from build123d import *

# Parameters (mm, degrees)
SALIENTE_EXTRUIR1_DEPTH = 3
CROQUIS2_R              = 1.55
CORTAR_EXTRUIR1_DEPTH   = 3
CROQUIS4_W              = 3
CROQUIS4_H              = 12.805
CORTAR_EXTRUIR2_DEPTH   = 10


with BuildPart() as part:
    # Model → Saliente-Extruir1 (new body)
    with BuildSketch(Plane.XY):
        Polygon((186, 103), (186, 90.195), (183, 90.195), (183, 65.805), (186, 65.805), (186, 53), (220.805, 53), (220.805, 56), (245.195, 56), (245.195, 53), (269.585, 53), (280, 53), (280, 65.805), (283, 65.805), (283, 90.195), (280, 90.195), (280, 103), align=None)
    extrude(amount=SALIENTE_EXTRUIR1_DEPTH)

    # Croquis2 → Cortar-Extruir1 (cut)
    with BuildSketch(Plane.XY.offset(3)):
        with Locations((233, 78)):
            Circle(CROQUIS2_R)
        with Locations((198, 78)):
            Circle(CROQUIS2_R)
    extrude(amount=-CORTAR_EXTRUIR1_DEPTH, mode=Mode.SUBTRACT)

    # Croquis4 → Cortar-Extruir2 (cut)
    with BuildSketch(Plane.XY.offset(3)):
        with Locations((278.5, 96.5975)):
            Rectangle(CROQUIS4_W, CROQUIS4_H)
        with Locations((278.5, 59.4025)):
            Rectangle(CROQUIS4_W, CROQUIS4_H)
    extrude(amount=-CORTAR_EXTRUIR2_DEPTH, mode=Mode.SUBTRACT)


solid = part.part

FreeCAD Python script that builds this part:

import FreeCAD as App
import Part
import Sketcher
Q = App.Units.Quantity

doc = App.newDocument("Part")
body = doc.addObject("PartDesign::Body", "Body")

# Sketch on XY plane
sketch1 = body.newObject("Sketcher::SketchObject", "Sketch")
sketch1.AttachmentSupport = (doc.getObject("XY_Plane"), [""])
sketch1.MapMode = "FlatFace"
sketch1.addGeometry([
    Part.LineSegment(App.Vector(186, 103, 0), App.Vector(186, 90.2, 0)),  # 0
    Part.LineSegment(App.Vector(186, 90.2, 0), App.Vector(183, 90.2, 0)),  # 1
    Part.LineSegment(App.Vector(183, 90.2, 0), App.Vector(183, 65.8, 0)),  # 2
    Part.LineSegment(App.Vector(183, 65.8, 0), App.Vector(186, 65.8, 0)),  # 3
    Part.LineSegment(App.Vector(186, 65.8, 0), App.Vector(186, 53, 0)),  # 4
    Part.LineSegment(App.Vector(186, 53, 0), App.Vector(220.8, 53, 0)),  # 5
    Part.LineSegment(App.Vector(220.8, 53, 0), App.Vector(220.8, 56, 0)),  # 6
    Part.LineSegment(App.Vector(220.8, 56, 0), App.Vector(245.2, 56, 0)),  # 7
    Part.LineSegment(App.Vector(245.2, 56, 0), App.Vector(245.2, 53, 0)),  # 8
    Part.LineSegment(App.Vector(245.2, 53, 0), App.Vector(280, 53, 0)),  # 9
    Part.LineSegment(App.Vector(280, 53, 0), App.Vector(280, 65.8, 0)),  # 10
    Part.LineSegment(App.Vector(280, 65.8, 0), App.Vector(283, 65.8, 0)),  # 11
    Part.LineSegment(App.Vector(283, 65.8, 0), App.Vector(283, 90.2, 0)),  # 12
    Part.LineSegment(App.Vector(283, 90.2, 0), App.Vector(280, 90.2, 0)),  # 13
    Part.LineSegment(App.Vector(280, 90.2, 0), App.Vector(280, 103, 0)),  # 14
    Part.LineSegment(App.Vector(280, 103, 0), App.Vector(186, 103, 0)),  # 15
], False)
sketch1.addConstraint([
    Sketcher.Constraint("Coincident", 0, 2, 1, 1),
    Sketcher.Constraint("Coincident", 1, 2, 2, 1),
    Sketcher.Constraint("Coincident", 2, 2, 3, 1),
    Sketcher.Constraint("Coincident", 3, 2, 4, 1),
    Sketcher.Constraint("Coincident", 4, 2, 5, 1),
    Sketcher.Constraint("Coincident", 5, 2, 6, 1),
    Sketcher.Constraint("Coincident", 6, 2, 7, 1),
    Sketcher.Constraint("Coincident", 7, 2, 8, 1),
    Sketcher.Constraint("Coincident", 8, 2, 9, 1),
    Sketcher.Constraint("Coincident", 9, 2, 10, 1),
    Sketcher.Constraint("Coincident", 10, 2, 11, 1),
    Sketcher.Constraint("Coincident", 11, 2, 12, 1),
    Sketcher.Constraint("Coincident", 12, 2, 13, 1),
    Sketcher.Constraint("Coincident", 13, 2, 14, 1),
    Sketcher.Constraint("Coincident", 14, 2, 15, 1),
    Sketcher.Constraint("Coincident", 15, 2, 0, 1),
    Sketcher.Constraint("Vertical", 0),
    Sketcher.Constraint("Horizontal", 1),
    Sketcher.Constraint("Vertical", 2),
    Sketcher.Constraint("Horizontal", 3),
    Sketcher.Constraint("Vertical", 4),
    Sketcher.Constraint("Horizontal", 5),
    Sketcher.Constraint("Vertical", 6),
    Sketcher.Constraint("Horizontal", 7),
    Sketcher.Constraint("Vertical", 8),
    Sketcher.Constraint("Horizontal", 9),
    Sketcher.Constraint("Vertical", 10),
    Sketcher.Constraint("Horizontal", 11),
    Sketcher.Constraint("Vertical", 12),
    Sketcher.Constraint("Horizontal", 13),
    Sketcher.Constraint("Vertical", 14),
    Sketcher.Constraint("Horizontal", 15),
    Sketcher.Constraint("Horizontal", 5, 2, 8, 2),
    Sketcher.Constraint("Horizontal", 3, 2, 10, 2),
    Sketcher.Constraint("Horizontal", 1, 2, 12, 2),
    Sketcher.Constraint("Vertical", 0, 2, 3, 2),
    Sketcher.Constraint("Vertical", 10, 2, 13, 2),
    Sketcher.Constraint("Equal", 5, 9),
    Sketcher.Constraint("Equal", 3, 11),
    Sketcher.Constraint("Equal", 7, 2),
    Sketcher.Constraint("Equal", 0, 4),
    Sketcher.Constraint("Equal", 13, 6),
    Sketcher.Constraint("DistanceX", 1, 2, 1, 1, Q("3 mm")),
    Sketcher.Constraint("DistanceX", 15, 2, 15, 1, Q("94 mm")),
    Sketcher.Constraint("DistanceX", -1, 1, 0, 2, Q("186 mm")),
    Sketcher.Constraint("DistanceY", -1, 1, 4, 2, Q("53 mm")),
    Sketcher.Constraint("DistanceY", -1, 1, 14, 2, Q("103 mm")),
    Sketcher.Constraint("DistanceX", 7, 1, 7, 2, Q("24.39 mm")),
])
pad1 = body.newObject("PartDesign::Pad", "Pad")
pad1.Profile = sketch1
pad1.Length = 3

# Sketch on XY plane
sketch2 = body.newObject("Sketcher::SketchObject", "Sketch001")
sketch2.AttachmentSupport = (doc.getObject("XY_Plane"), [""])
sketch2.MapMode = "FlatFace"
sketch2.AttachmentOffset = App.Placement(App.Vector(0, 0, 3), App.Rotation())
sketch2.addGeometry([
    Part.Circle(App.Vector(233, 78, 0), App.Vector(0, 0, 1), 1.6),
    Part.Circle(App.Vector(198, 78, 0), App.Vector(0, 0, 1), 1.6),
], False)
sketch2.addConstraint([
    Sketcher.Constraint("Equal", 0, 1),
    Sketcher.Constraint("Horizontal", 0, 3, 1, 3),
    Sketcher.Constraint("Diameter", 0, Q("3.1 mm")),
    Sketcher.Constraint("DistanceX", -1, 1, 0, 3, Q("233 mm")),
    Sketcher.Constraint("DistanceY", -1, 1, 0, 3, Q("78 mm")),
    Sketcher.Constraint("DistanceX", -1, 1, 1, 3, Q("198 mm")),
])
pocket1 = body.newObject("PartDesign::Pocket", "Pocket")
pocket1.Profile = sketch2
pocket1.Length = 3

# Sketch on XY plane
sketch3 = body.newObject("Sketcher::SketchObject", "Sketch002")
sketch3.AttachmentSupport = (doc.getObject("XY_Plane"), [""])
sketch3.MapMode = "FlatFace"
sketch3.AttachmentOffset = App.Placement(App.Vector(0, 0, 3), App.Rotation())
sketch3.addGeometry([
    Part.LineSegment(App.Vector(277, 103, 0), App.Vector(277, 90.2, 0)),  # 0
    Part.LineSegment(App.Vector(277, 90.2, 0), App.Vector(280, 90.2, 0)),  # 1
    Part.LineSegment(App.Vector(280, 90.2, 0), App.Vector(280, 103, 0)),  # 2
    Part.LineSegment(App.Vector(280, 103, 0), App.Vector(277, 103, 0)),  # 3
    Part.LineSegment(App.Vector(277, 65.8, 0), App.Vector(277, 53, 0)),  # 4
    Part.LineSegment(App.Vector(277, 53, 0), App.Vector(280, 53, 0)),  # 5
    Part.LineSegment(App.Vector(280, 53, 0), App.Vector(280, 65.8, 0)),  # 6
    Part.LineSegment(App.Vector(280, 65.8, 0), App.Vector(277, 65.8, 0)),  # 7
], False)
sketch3.addConstraint([
    Sketcher.Constraint("Coincident", 0, 2, 1, 1),
    Sketcher.Constraint("Coincident", 1, 2, 2, 1),
    Sketcher.Constraint("Coincident", 2, 2, 3, 1),
    Sketcher.Constraint("Coincident", 3, 2, 0, 1),
    Sketcher.Constraint("Coincident", 4, 2, 5, 1),
    Sketcher.Constraint("Coincident", 5, 2, 6, 1),
    Sketcher.Constraint("Coincident", 6, 2, 7, 1),
    Sketcher.Constraint("Coincident", 7, 2, 4, 1),
    Sketcher.Constraint("Vertical", 0),
    Sketcher.Constraint("Horizontal", 1),
    Sketcher.Constraint("Vertical", 2),
    Sketcher.Constraint("Horizontal", 3),
    Sketcher.Constraint("Vertical", 4),
    Sketcher.Constraint("Horizontal", 5),
    Sketcher.Constraint("Vertical", 6),
    Sketcher.Constraint("Horizontal", 7),
    Sketcher.Constraint("Vertical", 3, 2, 4, 2),
    Sketcher.Constraint("Vertical", 2, 2, 5, 2),
    Sketcher.Constraint("Equal", 2, 4),
    Sketcher.Constraint("DistanceX", 1, 1, 1, 2, Q("3 mm")),
    Sketcher.Constraint("DistanceX", -1, 1, 0, 2, Q("277 mm")),
    Sketcher.Constraint("DistanceY", -1, 1, 2, 2, Q("103 mm")),
    Sketcher.Constraint("DistanceY", -1, 1, 4, 2, Q("53 mm")),
    Sketcher.Constraint("DistanceY", 0, 2, 0, 1, Q("12.805 mm")),
])
pocket2 = body.newObject("PartDesign::Pocket", "Pocket001")
pocket2.Profile = sketch3
pocket2.Length = 10

doc.recompute()
